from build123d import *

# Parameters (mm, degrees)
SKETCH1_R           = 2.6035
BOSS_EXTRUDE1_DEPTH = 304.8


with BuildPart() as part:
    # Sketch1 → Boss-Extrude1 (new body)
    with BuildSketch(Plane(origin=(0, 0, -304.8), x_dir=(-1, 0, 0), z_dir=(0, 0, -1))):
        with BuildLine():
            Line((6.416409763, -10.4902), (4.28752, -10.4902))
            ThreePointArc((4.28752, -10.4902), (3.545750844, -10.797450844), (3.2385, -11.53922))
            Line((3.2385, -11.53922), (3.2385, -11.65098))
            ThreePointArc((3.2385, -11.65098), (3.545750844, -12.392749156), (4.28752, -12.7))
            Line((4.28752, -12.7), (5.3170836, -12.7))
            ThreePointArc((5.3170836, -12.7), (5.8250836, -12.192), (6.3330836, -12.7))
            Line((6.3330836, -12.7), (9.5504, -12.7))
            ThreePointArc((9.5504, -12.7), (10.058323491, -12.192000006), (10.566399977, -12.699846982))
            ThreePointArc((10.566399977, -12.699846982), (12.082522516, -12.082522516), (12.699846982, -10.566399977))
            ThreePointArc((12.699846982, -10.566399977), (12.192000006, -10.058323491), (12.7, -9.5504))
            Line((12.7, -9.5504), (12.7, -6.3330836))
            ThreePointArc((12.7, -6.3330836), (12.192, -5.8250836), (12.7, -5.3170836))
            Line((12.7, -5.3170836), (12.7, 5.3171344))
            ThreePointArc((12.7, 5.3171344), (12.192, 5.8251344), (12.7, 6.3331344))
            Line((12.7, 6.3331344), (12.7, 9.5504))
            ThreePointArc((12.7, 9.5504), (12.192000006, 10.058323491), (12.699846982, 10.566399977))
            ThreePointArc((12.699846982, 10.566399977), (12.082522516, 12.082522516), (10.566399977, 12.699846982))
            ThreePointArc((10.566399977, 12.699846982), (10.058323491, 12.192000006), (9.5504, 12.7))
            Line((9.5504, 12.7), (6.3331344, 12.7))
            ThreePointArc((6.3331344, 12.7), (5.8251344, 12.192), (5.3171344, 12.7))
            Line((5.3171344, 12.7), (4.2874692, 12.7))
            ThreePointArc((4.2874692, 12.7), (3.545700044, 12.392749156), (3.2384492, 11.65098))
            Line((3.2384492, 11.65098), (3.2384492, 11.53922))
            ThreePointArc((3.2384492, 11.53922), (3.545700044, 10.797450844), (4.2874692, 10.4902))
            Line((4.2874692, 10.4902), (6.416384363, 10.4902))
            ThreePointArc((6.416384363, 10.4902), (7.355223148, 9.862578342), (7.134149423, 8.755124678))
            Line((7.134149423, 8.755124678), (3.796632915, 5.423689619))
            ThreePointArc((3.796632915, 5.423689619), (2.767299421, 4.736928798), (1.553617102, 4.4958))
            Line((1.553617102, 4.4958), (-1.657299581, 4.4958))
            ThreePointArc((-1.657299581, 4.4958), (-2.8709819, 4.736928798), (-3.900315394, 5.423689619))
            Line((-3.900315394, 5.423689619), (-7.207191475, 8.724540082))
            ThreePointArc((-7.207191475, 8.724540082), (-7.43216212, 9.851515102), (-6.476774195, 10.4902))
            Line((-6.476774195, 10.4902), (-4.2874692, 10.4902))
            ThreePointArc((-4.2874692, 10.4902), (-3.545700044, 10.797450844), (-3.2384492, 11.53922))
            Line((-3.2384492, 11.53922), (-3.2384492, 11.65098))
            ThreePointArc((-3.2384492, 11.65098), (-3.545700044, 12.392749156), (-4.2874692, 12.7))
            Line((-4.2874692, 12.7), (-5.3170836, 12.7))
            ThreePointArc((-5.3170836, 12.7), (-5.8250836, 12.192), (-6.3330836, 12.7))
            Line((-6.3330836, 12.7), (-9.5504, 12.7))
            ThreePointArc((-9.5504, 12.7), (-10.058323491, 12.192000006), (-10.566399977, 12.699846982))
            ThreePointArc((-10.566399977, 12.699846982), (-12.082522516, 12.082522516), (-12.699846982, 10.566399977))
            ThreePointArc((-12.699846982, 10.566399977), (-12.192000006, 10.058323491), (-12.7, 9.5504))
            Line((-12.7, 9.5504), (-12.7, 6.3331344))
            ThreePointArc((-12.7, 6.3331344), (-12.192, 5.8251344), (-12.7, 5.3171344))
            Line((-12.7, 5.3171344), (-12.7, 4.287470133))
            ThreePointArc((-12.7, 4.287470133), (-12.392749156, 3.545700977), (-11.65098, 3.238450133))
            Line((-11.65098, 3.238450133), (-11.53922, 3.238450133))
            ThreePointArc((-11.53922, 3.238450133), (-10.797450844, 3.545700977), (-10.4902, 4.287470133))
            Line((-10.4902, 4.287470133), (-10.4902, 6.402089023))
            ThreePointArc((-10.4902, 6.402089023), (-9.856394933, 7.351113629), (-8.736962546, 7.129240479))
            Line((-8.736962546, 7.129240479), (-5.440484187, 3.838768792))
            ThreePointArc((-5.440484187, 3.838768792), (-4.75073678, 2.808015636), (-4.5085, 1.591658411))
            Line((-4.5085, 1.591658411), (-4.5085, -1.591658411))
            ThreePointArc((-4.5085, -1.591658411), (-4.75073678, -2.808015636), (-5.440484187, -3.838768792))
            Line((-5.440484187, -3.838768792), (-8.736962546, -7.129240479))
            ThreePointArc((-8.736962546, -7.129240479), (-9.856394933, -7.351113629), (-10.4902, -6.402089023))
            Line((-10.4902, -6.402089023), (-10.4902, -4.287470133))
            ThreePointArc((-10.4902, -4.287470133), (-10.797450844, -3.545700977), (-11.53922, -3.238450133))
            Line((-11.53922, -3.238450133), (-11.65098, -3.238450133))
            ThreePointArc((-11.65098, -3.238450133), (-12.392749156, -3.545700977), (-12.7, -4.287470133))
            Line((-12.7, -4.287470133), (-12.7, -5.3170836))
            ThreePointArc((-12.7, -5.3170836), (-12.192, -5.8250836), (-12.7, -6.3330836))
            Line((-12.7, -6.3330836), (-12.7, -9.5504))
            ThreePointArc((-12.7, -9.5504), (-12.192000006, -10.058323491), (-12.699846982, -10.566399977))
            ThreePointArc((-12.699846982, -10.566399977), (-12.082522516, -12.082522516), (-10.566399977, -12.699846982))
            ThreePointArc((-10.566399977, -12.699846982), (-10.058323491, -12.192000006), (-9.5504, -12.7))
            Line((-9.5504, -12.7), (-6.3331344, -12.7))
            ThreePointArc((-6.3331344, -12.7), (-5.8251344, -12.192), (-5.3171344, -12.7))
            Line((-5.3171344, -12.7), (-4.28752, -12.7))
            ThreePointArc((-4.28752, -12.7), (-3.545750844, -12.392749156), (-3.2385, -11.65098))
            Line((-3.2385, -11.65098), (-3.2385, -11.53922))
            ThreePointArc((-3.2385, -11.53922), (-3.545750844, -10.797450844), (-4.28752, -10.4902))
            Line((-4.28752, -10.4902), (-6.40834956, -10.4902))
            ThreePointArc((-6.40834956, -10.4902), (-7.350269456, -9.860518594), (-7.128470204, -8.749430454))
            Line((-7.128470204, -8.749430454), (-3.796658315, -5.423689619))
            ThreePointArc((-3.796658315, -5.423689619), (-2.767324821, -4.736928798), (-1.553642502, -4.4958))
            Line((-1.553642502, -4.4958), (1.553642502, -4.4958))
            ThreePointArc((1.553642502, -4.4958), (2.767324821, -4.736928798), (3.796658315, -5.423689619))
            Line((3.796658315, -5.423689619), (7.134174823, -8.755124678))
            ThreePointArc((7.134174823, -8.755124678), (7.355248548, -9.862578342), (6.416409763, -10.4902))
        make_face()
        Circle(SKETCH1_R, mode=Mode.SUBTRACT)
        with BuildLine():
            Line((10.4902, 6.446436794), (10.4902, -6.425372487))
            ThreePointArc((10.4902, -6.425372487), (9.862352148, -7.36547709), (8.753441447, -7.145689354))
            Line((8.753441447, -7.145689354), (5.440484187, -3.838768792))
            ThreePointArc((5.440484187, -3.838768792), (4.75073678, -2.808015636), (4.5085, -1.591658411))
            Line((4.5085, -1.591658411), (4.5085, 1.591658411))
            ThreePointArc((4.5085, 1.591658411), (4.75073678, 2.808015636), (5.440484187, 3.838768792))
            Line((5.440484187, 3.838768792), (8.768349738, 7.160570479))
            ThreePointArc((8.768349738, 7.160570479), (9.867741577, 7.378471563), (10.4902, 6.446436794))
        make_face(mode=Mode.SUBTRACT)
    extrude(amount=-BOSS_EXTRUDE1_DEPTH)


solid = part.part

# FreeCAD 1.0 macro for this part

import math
import FreeCAD as App
import Part
import Sketcher
Q = App.Units.Quantity

doc = App.newDocument("Part")
params = doc.addObject("Spreadsheet::Sheet", "Params")
for row, (alias, value) in enumerate([
    ("sketch1_radius", "0.02 in"),
    ("sketch1_radius2", "0.04 in"),
    ("sketch1_diameter", "0.205 in"),
    ("sketch1_radius3", "0.083 in"),
    ("sketch1_radius4", "0.125 in"),
    ("pad1_length", "12 in"),
], start=1):
    params.set(f"A{row}", alias)
    params.set(f"B{row}", "=" + value)
    params.setAlias(f"B{row}", alias)

body = doc.addObject("PartDesign::Body", "Body")

sketch1 = body.newObject("Sketcher::SketchObject", "Sketch")
sketch1.AttachmentSupport = (doc.getObject("XY_Plane"), [""])
sketch1.MapMode = "FlatFace"
sketch1.AttachmentOffset = App.Placement(App.Vector(0, 0, -12 * 25.4), App.Rotation())
sketch1.addGeometry(Part.LineSegment(App.Vector(-6.42, -10.49, 0), App.Vector(-4.29, -10.49, 0)), False)
sketch1.addGeometry(Part.ArcOfCircle(Part.Circle(App.Vector(-4.29, -11.54, 0), App.Vector(0, 0, 1), 1.05), math.radians(0), math.radians(90)), False)
sketch1.addGeometry(Part.LineSegment(App.Vector(-3.24, -11.54, 0), App.Vector(-3.24, -11.65, 0)), False)
sketch1.addGeometry(Part.ArcOfCircle(Part.Circle(App.Vector(-4.29, -11.65, 0), App.Vector(0, 0, 1), 1.05), math.radians(-90), math.radians(0)), False)
sketch1.addGeometry(Part.LineSegment(App.Vector(-4.29, -12.7, 0), App.Vector(-5.32, -12.7, 0)), False)
sketch1.addGeometry(Part.ArcOfCircle(Part.Circle(App.Vector(-5.83, -12.7, 0), App.Vector(0, 0, 1), 0.51), math.radians(0), math.radians(180)), False)
sketch1.addGeometry(Part.LineSegment(App.Vector(-6.33, -12.7, 0), App.Vector(-9.55, -12.7, 0)), False)
sketch1.addGeometry(Part.ArcOfCircle(Part.Circle(App.Vector(-10.06, -12.7, 0), App.Vector(0, 0, 1), 0.51), math.radians(0), math.radians(180)), False)
sketch1.addGeometry(Part.ArcOfCircle(Part.Circle(App.Vector(-10.59, -10.59, 0), App.Vector(0, 0, 1), 2.11), math.radians(179), math.radians(271)), False)
sketch1.addGeometry(Part.ArcOfCircle(Part.Circle(App.Vector(-12.7, -10.06, 0), App.Vector(0, 0, 1), 0.51), math.radians(-90), math.radians(90)), False)
sketch1.addGeometry(Part.LineSegment(App.Vector(-12.7, -9.55, 0), App.Vector(-12.7, -6.33, 0)), False)
sketch1.addGeometry(Part.ArcOfCircle(Part.Circle(App.Vector(-12.7, -5.83, 0), App.Vector(0, 0, 1), 0.51), math.radians(-90), math.radians(90)), False)
sketch1.addGeometry(Part.LineSegment(App.Vector(-12.7, -5.32, 0), App.Vector(-12.7, 5.32, 0)), False)
sketch1.addGeometry(Part.ArcOfCircle(Part.Circle(App.Vector(-12.7, 5.83, 0), App.Vector(0, 0, 1), 0.51), math.radians(-90), math.radians(90)), False)
sketch1.addGeometry(Part.LineSegment(App.Vector(-12.7, 6.33, 0), App.Vector(-12.7, 9.55, 0)), False)
sketch1.addGeometry(Part.ArcOfCircle(Part.Circle(App.Vector(-12.7, 10.06, 0), App.Vector(0, 0, 1), 0.51), math.radians(-90), math.radians(90)), False)
sketch1.addGeometry(Part.ArcOfCircle(Part.Circle(App.Vector(-10.59, 10.59, 0), App.Vector(0, 0, 1), 2.11), math.radians(89), math.radians(181)), False)
sketch1.addGeometry(Part.ArcOfCircle(Part.Circle(App.Vector(-10.06, 12.7, 0), App.Vector(0, 0, 1), 0.51), math.radians(-180), math.radians(0)), False)
sketch1.addGeometry(Part.LineSegment(App.Vector(-9.55, 12.7, 0), App.Vector(-6.33, 12.7, 0)), False)
sketch1.addGeometry(Part.ArcOfCircle(Part.Circle(App.Vector(-5.83, 12.7, 0), App.Vector(0, 0, 1), 0.51), math.radians(180), math.radians(360)), False)
sketch1.addGeometry(Part.LineSegment(App.Vector(-5.32, 12.7, 0), App.Vector(-4.29, 12.7, 0)), False)
sketch1.addGeometry(Part.ArcOfCircle(Part.Circle(App.Vector(-4.29, 11.65, 0), App.Vector(0, 0, 1), 1.05), math.radians(0), math.radians(90)), False)
sketch1.addGeometry(Part.LineSegment(App.Vector(-3.24, 11.65, 0), App.Vector(-3.24, 11.54, 0)), False)
sketch1.addGeometry(Part.ArcOfCircle(Part.Circle(App.Vector(-4.29, 11.54, 0), App.Vector(0, 0, 1), 1.05), math.radians(-90), math.radians(0)), False)
sketch1.addGeometry(Part.LineSegment(App.Vector(-4.29, 10.49, 0), App.Vector(-6.42, 10.49, 0)), False)
sketch1.addGeometry(Part.ArcOfCircle(Part.Circle(App.Vector(-6.42, 9.47, 0), App.Vector(0, 0, 1), 1.02), math.radians(90), math.radians(225)), False)
sketch1.addGeometry(Part.LineSegment(App.Vector(-7.13, 8.76, 0), App.Vector(-3.8, 5.42, 0)), False)
sketch1.addGeometry(Part.ArcOfCircle(Part.Circle(App.Vector(-1.55, 7.67, 0), App.Vector(0, 0, 1), 3.17), math.radians(-135), math.radians(-90)), False)
sketch1.addGeometry(Part.LineSegment(App.Vector(-1.55, 4.5, 0), App.Vector(1.66, 4.5, 0)), False)
sketch1.addGeometry(Part.ArcOfCircle(Part.Circle(App.Vector(1.66, 7.67, 0), App.Vector(0, 0, 1), 3.17), math.radians(-90), math.radians(-45)), False)
sketch1.addGeometry(Part.LineSegment(App.Vector(3.9, 5.42, 0), App.Vector(7.21, 8.72, 0)), False)
sketch1.addGeometry(Part.ArcOfCircle(Part.Circle(App.Vector(6.48, 9.46, 0), App.Vector(0, 0, 1), 1.03), math.radians(-45), math.radians(90)), False)
sketch1.addGeometry(Part.LineSegment(App.Vector(6.48, 10.49, 0), App.Vector(4.29, 10.49, 0)), False)
sketch1.addGeometry(Part.ArcOfCircle(Part.Circle(App.Vector(4.29, 11.54, 0), App.Vector(0, 0, 1), 1.05), math.radians(180), math.radians(270)), False)
sketch1.addGeometry(Part.LineSegment(App.Vector(3.24, 11.54, 0), App.Vector(3.24, 11.65, 0)), False)
sketch1.addGeometry(Part.ArcOfCircle(Part.Circle(App.Vector(4.29, 11.65, 0), App.Vector(0, 0, 1), 1.05), math.radians(90), math.radians(180)), False)
sketch1.addGeometry(Part.LineSegment(App.Vector(4.29, 12.7, 0), App.Vector(5.32, 12.7, 0)), False)
sketch1.addGeometry(Part.ArcOfCircle(Part.Circle(App.Vector(5.83, 12.7, 0), App.Vector(0, 0, 1), 0.51), math.radians(180), math.radians(360)), False)
sketch1.addGeometry(Part.LineSegment(App.Vector(6.33, 12.7, 0), App.Vector(9.55, 12.7, 0)), False)
sketch1.addGeometry(Part.ArcOfCircle(Part.Circle(App.Vector(10.06, 12.7, 0), App.Vector(0, 0, 1), 0.51), math.radians(180), math.radians(360)), False)
sketch1.addGeometry(Part.ArcOfCircle(Part.Circle(App.Vector(10.59, 10.59, 0), App.Vector(0, 0, 1), 2.11), math.radians(-1), math.radians(91)), False)
sketch1.addGeometry(Part.ArcOfCircle(Part.Circle(App.Vector(12.7, 10.06, 0), App.Vector(0, 0, 1), 0.51), math.radians(90), math.radians(270)), False)
sketch1.addGeometry(Part.LineSegment(App.Vector(12.7, 9.55, 0), App.Vector(12.7, 6.33, 0)), False)
sketch1.addGeometry(Part.ArcOfCircle(Part.Circle(App.Vector(12.7, 5.83, 0), App.Vector(0, 0, 1), 0.51), math.radians(90), math.radians(270)), False)
sketch1.addGeometry(Part.LineSegment(App.Vector(12.7, 5.32, 0), App.Vector(12.7, 4.29, 0)), False)
sketch1.addGeometry(Part.ArcOfCircle(Part.Circle(App.Vector(11.65, 4.29, 0), App.Vector(0, 0, 1), 1.05), math.radians(-90), math.radians(0)), False)
sketch1.addGeometry(Part.LineSegment(App.Vector(11.65, 3.24, 0), App.Vector(11.54, 3.24, 0)), False)
sketch1.addGeometry(Part.ArcOfCircle(Part.Circle(App.Vector(11.54, 4.29, 0), App.Vector(0, 0, 1), 1.05), math.radians(180), math.radians(270)), False)
sketch1.addGeometry(Part.LineSegment(App.Vector(10.49, 4.29, 0), App.Vector(10.49, 6.4, 0)), False)
sketch1.addGeometry(Part.ArcOfCircle(Part.Circle(App.Vector(9.46, 6.4, 0), App.Vector(0, 0, 1), 1.03), math.radians(0), math.radians(135)), False)
sketch1.addGeometry(Part.LineSegment(App.Vector(8.74, 7.13, 0), App.Vector(5.44, 3.84, 0)), False)
sketch1.addGeometry(Part.ArcOfCircle(Part.Circle(App.Vector(7.68, 1.59, 0), App.Vector(0, 0, 1), 3.17), math.radians(135), math.radians(180)), False)
sketch1.addGeometry(Part.LineSegment(App.Vector(4.51, 1.59, 0), App.Vector(4.51, -1.59, 0)), False)
sketch1.addGeometry(Part.ArcOfCircle(Part.Circle(App.Vector(7.68, -1.59, 0), App.Vector(0, 0, 1), 3.17), math.radians(180), math.radians(225)), False)
sketch1.addGeometry(Part.LineSegment(App.Vector(5.44, -3.84, 0), App.Vector(8.74, -7.13, 0)), False)
sketch1.addGeometry(Part.ArcOfCircle(Part.Circle(App.Vector(9.46, -6.4, 0), App.Vector(0, 0, 1), 1.03), math.radians(-135), math.radians(0)), False)
sketch1.addGeometry(Part.LineSegment(App.Vector(10.49, -6.4, 0), App.Vector(10.49, -4.29, 0)), False)
sketch1.addGeometry(Part.ArcOfCircle(Part.Circle(App.Vector(11.54, -4.29, 0), App.Vector(0, 0, 1), 1.05), math.radians(90), math.radians(180)), False)
sketch1.addGeometry(Part.LineSegment(App.Vector(11.54, -3.24, 0), App.Vector(11.65, -3.24, 0)), False)
sketch1.addGeometry(Part.ArcOfCircle(Part.Circle(App.Vector(11.65, -4.29, 0), App.Vector(0, 0, 1), 1.05), math.radians(0), math.radians(90)), False)
sketch1.addGeometry(Part.LineSegment(App.Vector(12.7, -4.29, 0), App.Vector(12.7, -5.32, 0)), False)
sketch1.addGeometry(Part.ArcOfCircle(Part.Circle(App.Vector(12.7, -5.83, 0), App.Vector(0, 0, 1), 0.51), math.radians(90), math.radians(270)), False)
sketch1.addGeometry(Part.LineSegment(App.Vector(12.7, -6.33, 0), App.Vector(12.7, -9.55, 0)), False)
sketch1.addGeometry(Part.ArcOfCircle(Part.Circle(App.Vector(12.7, -10.06, 0), App.Vector(0, 0, 1), 0.51), math.radians(90), math.radians(270)), False)
sketch1.addGeometry(Part.ArcOfCircle(Part.Circle(App.Vector(10.59, -10.59, 0), App.Vector(0, 0, 1), 2.11), math.radians(-91), math.radians(1)), False)
sketch1.addGeometry(Part.ArcOfCircle(Part.Circle(App.Vector(10.06, -12.7, 0), App.Vector(0, 0, 1), 0.51), math.radians(0), math.radians(180)), False)
sketch1.addGeometry(Part.LineSegment(App.Vector(9.55, -12.7, 0), App.Vector(6.33, -12.7, 0)), False)
sketch1.addGeometry(Part.ArcOfCircle(Part.Circle(App.Vector(5.83, -12.7, 0), App.Vector(0, 0, 1), 0.51), math.radians(0), math.radians(180)), False)
sketch1.addGeometry(Part.LineSegment(App.Vector(5.32, -12.7, 0), App.Vector(4.29, -12.7, 0)), False)
sketch1.addGeometry(Part.ArcOfCircle(Part.Circle(App.Vector(4.29, -11.65, 0), App.Vector(0, 0, 1), 1.05), math.radians(180), math.radians(270)), False)
sketch1.addGeometry(Part.LineSegment(App.Vector(3.24, -11.65, 0), App.Vector(3.24, -11.54, 0)), False)
sketch1.addGeometry(Part.ArcOfCircle(Part.Circle(App.Vector(4.29, -11.54, 0), App.Vector(0, 0, 1), 1.05), math.radians(90), math.radians(180)), False)
sketch1.addGeometry(Part.LineSegment(App.Vector(4.29, -10.49, 0), App.Vector(6.41, -10.49, 0)), False)
sketch1.addGeometry(Part.ArcOfCircle(Part.Circle(App.Vector(6.41, -9.47, 0), App.Vector(0, 0, 1), 1.02), math.radians(-90), math.radians(45)), False)
sketch1.addGeometry(Part.LineSegment(App.Vector(7.13, -8.75, 0), App.Vector(3.8, -5.42, 0)), False)
sketch1.addGeometry(Part.ArcOfCircle(Part.Circle(App.Vector(1.55, -7.67, 0), App.Vector(0, 0, 1), 3.17), math.radians(45), math.radians(90)), False)
sketch1.addGeometry(Part.LineSegment(App.Vector(1.55, -4.5, 0), App.Vector(-1.55, -4.5, 0)), False)
sketch1.addGeometry(Part.ArcOfCircle(Part.Circle(App.Vector(-1.55, -7.67, 0), App.Vector(0, 0, 1), 3.17), math.radians(90), math.radians(135)), False)
sketch1.addGeometry(Part.LineSegment(App.Vector(-3.8, -5.42, 0), App.Vector(-7.13, -8.76, 0)), False)
sketch1.addGeometry(Part.ArcOfCircle(Part.Circle(App.Vector(-6.42, -9.47, 0), App.Vector(0, 0, 1), 1.02), math.radians(135), math.radians(270)), False)
sketch1.addGeometry(Part.Circle(App.Vector(0, 0, 0), App.Vector(0, 0, 1), 2.6), False)
sketch1.addGeometry(Part.ArcOfCircle(Part.Circle(App.Vector(-9.48, 6.45, 0), App.Vector(0, 0, 1), 1.01), math.radians(45), math.radians(180)), False)
sketch1.addGeometry(Part.LineSegment(App.Vector(-10.49, 6.45, 0), App.Vector(-10.49, -6.43, 0)), False)
sketch1.addGeometry(Part.ArcOfCircle(Part.Circle(App.Vector(-9.47, -6.43, 0), App.Vector(0, 0, 1), 1.02), math.radians(180), math.radians(315)), False)
sketch1.addGeometry(Part.LineSegment(App.Vector(-8.75, -7.15, 0), App.Vector(-5.44, -3.84, 0)), False)
sketch1.addGeometry(Part.ArcOfCircle(Part.Circle(App.Vector(-7.68, -1.59, 0), App.Vector(0, 0, 1), 3.17), math.radians(-45), math.radians(0)), False)
sketch1.addGeometry(Part.LineSegment(App.Vector(-4.51, -1.59, 0), App.Vector(-4.51, 1.59, 0)), False)
sketch1.addGeometry(Part.ArcOfCircle(Part.Circle(App.Vector(-7.68, 1.59, 0), App.Vector(0, 0, 1), 3.17), math.radians(0), math.radians(45)), False)
sketch1.addGeometry(Part.LineSegment(App.Vector(-5.44, 3.84, 0), App.Vector(-8.77, 7.16, 0)), False)
sketch1.addConstraint(Sketcher.Constraint("Tangent", 0, 2, 1, 2))
sketch1.addConstraint(Sketcher.Constraint("Tangent", 1, 1, 2, 1))
sketch1.addConstraint(Sketcher.Constraint("Tangent", 2, 2, 3, 2))
sketch1.addConstraint(Sketcher.Constraint("Tangent", 3, 1, 4, 1))
sketch1.addConstraint(Sketcher.Constraint("Coincident", 4, 2, 5, 1))
sketch1.addConstraint(Sketcher.Constraint("Coincident", 5, 2, 6, 1))
sketch1.addConstraint(Sketcher.Constraint("Coincident", 6, 2, 7, 1))
sketch1.addConstraint(Sketcher.Constraint("Coincident", 7, 2, 8, 2))
sketch1.addConstraint(Sketcher.Constraint("Coincident", 8, 1, 9, 1))
sketch1.addConstraint(Sketcher.Constraint("Coincident", 9, 2, 10, 1))
sketch1.addConstraint(Sketcher.Constraint("Coincident", 10, 2, 11, 1))
sketch1.addConstraint(Sketcher.Constraint("Coincident", 11, 2, 12, 1))
sketch1.addConstraint(Sketcher.Constraint("Coincident", 12, 2, 13, 1))
sketch1.addConstraint(Sketcher.Constraint("Coincident", 13, 2, 14, 1))
sketch1.addConstraint(Sketcher.Constraint("Coincident", 14, 2, 15, 1))
sketch1.addConstraint(Sketcher.Constraint("Coincident", 15, 2, 16, 2))
sketch1.addConstraint(Sketcher.Constraint("Coincident", 16, 1, 17, 1))
sketch1.addConstraint(Sketcher.Constraint("Coincident", 17, 2, 18, 1))
sketch1.addConstraint(Sketcher.Constraint("Coincident", 18, 2, 19, 1))
sketch1.addConstraint(Sketcher.Constraint("Coincident", 19, 2, 20, 1))
sketch1.addConstraint(Sketcher.Constraint("Tangent", 20, 2, 21, 2))
sketch1.addConstraint(Sketcher.Constraint("Tangent", 21, 1, 22, 1))
sketch1.addConstraint(Sketcher.Constraint("Tangent", 22, 2, 23, 2))
sketch1.addConstraint(Sketcher.Constraint("Tangent", 23, 1, 24, 1))
sketch1.addConstraint(Sketcher.Constraint("Tangent", 24, 2, 25, 1))
sketch1.addConstraint(Sketcher.Constraint("Tangent", 25, 2, 26, 1))
sketch1.addConstraint(Sketcher.Constraint("Tangent", 26, 2, 27, 1))
sketch1.addConstraint(Sketcher.Constraint("Tangent", 27, 2, 28, 1))
sketch1.addConstraint(Sketcher.Constraint("Tangent", 28, 2, 29, 1))
sketch1.addConstraint(Sketcher.Constraint("Tangent", 29, 2, 30, 1))
sketch1.addConstraint(Sketcher.Constraint("Tangent", 30, 2, 31, 1))
sketch1.addConstraint(Sketcher.Constraint("Tangent", 31, 2, 32, 1))
sketch1.addConstraint(Sketcher.Constraint("Tangent", 32, 2, 33, 2))
sketch1.addConstraint(Sketcher.Constraint("Tangent", 33, 1, 34, 1))
sketch1.addConstraint(Sketcher.Constraint("Tangent", 34, 2, 35, 2))
sketch1.addConstraint(Sketcher.Constraint("Tangent", 35, 1, 36, 1))
sketch1.addConstraint(Sketcher.Constraint("Coincident", 36, 2, 37, 1))
sketch1.addConstraint(Sketcher.Constraint("Coincident", 37, 2, 38, 1))
sketch1.addConstraint(Sketcher.Constraint("Coincident", 38, 2, 39, 1))
sketch1.addConstraint(Sketcher.Constraint("Coincident", 39, 2, 40, 2))
sketch1.addConstraint(Sketcher.Constraint("Coincident", 40, 1, 41, 1))
sketch1.addConstraint(Sketcher.Constraint("Coincident", 41, 2, 42, 1))
sketch1.addConstraint(Sketcher.Constraint("Coincident", 42, 2, 43, 1))
sketch1.addConstraint(Sketcher.Constraint("Coincident", 43, 2, 44, 1))
sketch1.addConstraint(Sketcher.Constraint("Tangent", 44, 2, 45, 2))
sketch1.addConstraint(Sketcher.Constraint("Tangent", 45, 1, 46, 1))
sketch1.addConstraint(Sketcher.Constraint("Tangent", 46, 2, 47, 2))
sketch1.addConstraint(Sketcher.Constraint("Tangent", 47, 1, 48, 1))
sketch1.addConstraint(Sketcher.Constraint("Tangent", 48, 2, 49, 1))
sketch1.addConstraint(Sketcher.Constraint("Tangent", 49, 2, 50, 1))
sketch1.addConstraint(Sketcher.Constraint("Tangent", 50, 2, 51, 1))
sketch1.addConstraint(Sketcher.Constraint("Tangent", 51, 2, 52, 1))
sketch1.addConstraint(Sketcher.Constraint("Tangent", 52, 2, 53, 1))
sketch1.addConstraint(Sketcher.Constraint("Tangent", 53, 2, 54, 1))
sketch1.addConstraint(Sketcher.Constraint("Tangent", 54, 2, 55, 1))
sketch1.addConstraint(Sketcher.Constraint("Tangent", 55, 2, 56, 1))
sketch1.addConstraint(Sketcher.Constraint("Tangent", 56, 2, 57, 2))
sketch1.addConstraint(Sketcher.Constraint("Tangent", 57, 1, 58, 1))
sketch1.addConstraint(Sketcher.Constraint("Tangent", 58, 2, 59, 2))
sketch1.addConstraint(Sketcher.Constraint("Tangent", 59, 1, 60, 1))
sketch1.addConstraint(Sketcher.Constraint("Coincident", 60, 2, 61, 1))
sketch1.addConstraint(Sketcher.Constraint("Coincident", 61, 2, 62, 1))
sketch1.addConstraint(Sketcher.Constraint("Coincident", 62, 2, 63, 1))
sketch1.addConstraint(Sketcher.Constraint("Coincident", 63, 2, 64, 2))
sketch1.addConstraint(Sketcher.Constraint("Coincident", 64, 1, 65, 1))
sketch1.addConstraint(Sketcher.Constraint("Coincident", 65, 2, 66, 1))
sketch1.addConstraint(Sketcher.Constraint("Coincident", 66, 2, 67, 1))
sketch1.addConstraint(Sketcher.Constraint("Coincident", 67, 2, 68, 1))
sketch1.addConstraint(Sketcher.Constraint("Tangent", 68, 2, 69, 2))
sketch1.addConstraint(Sketcher.Constraint("Tangent", 69, 1, 70, 1))
sketch1.addConstraint(Sketcher.Constraint("Tangent", 70, 2, 71, 2))
sketch1.addConstraint(Sketcher.Constraint("Tangent", 71, 1, 72, 1))
sketch1.addConstraint(Sketcher.Constraint("Tangent", 72, 2, 73, 1))
sketch1.addConstraint(Sketcher.Constraint("Tangent", 73, 2, 74, 1))
sketch1.addConstraint(Sketcher.Constraint("Tangent", 74, 2, 75, 1))
sketch1.addConstraint(Sketcher.Constraint("Tangent", 75, 2, 76, 1))
sketch1.addConstraint(Sketcher.Constraint("Tangent", 76, 2, 77, 1))
sketch1.addConstraint(Sketcher.Constraint("Tangent", 77, 2, 78, 1))
sketch1.addConstraint(Sketcher.Constraint("Tangent", 78, 2, 79, 1))
sketch1.addConstraint(Sketcher.Constraint("Tangent", 79, 2, 0, 1))
sketch1.addConstraint(Sketcher.Constraint("Tangent", 81, 2, 82, 1))
sketch1.addConstraint(Sketcher.Constraint("Tangent", 82, 2, 83, 1))
sketch1.addConstraint(Sketcher.Constraint("Tangent", 83, 2, 84, 1))
sketch1.addConstraint(Sketcher.Constraint("Tangent", 84, 2, 85, 1))
sketch1.addConstraint(Sketcher.Constraint("Tangent", 85, 2, 86, 1))
sketch1.addConstraint(Sketcher.Constraint("Tangent", 86, 2, 87, 1))
sketch1.addConstraint(Sketcher.Constraint("Tangent", 87, 2, 88, 1))
sketch1.addConstraint(Sketcher.Constraint("Tangent", 88, 2, 81, 1))
sketch1.addConstraint(Sketcher.Constraint("Horizontal", 0))
sketch1.addConstraint(Sketcher.Constraint("Vertical", 2))
sketch1.addConstraint(Sketcher.Constraint("Horizontal", 4))
sketch1.addConstraint(Sketcher.Constraint("Horizontal", 6))
sketch1.addConstraint(Sketcher.Constraint("Vertical", 10))
sketch1.addConstraint(Sketcher.Constraint("Vertical", 12))
sketch1.addConstraint(Sketcher.Constraint("Vertical", 14))
sketch1.addConstraint(Sketcher.Constraint("Horizontal", 18))
sketch1.addConstraint(Sketcher.Constraint("Horizontal", 20))
sketch1.addConstraint(Sketcher.Constraint("Vertical", 22))
sketch1.addConstraint(Sketcher.Constraint("Horizontal", 24))
sketch1.addConstraint(Sketcher.Constraint("Horizontal", 28))
sketch1.addConstraint(Sketcher.Constraint("Horizontal", 32))
sketch1.addConstraint(Sketcher.Constraint("Vertical", 34))
sketch1.addConstraint(Sketcher.Constraint("Horizontal", 36))
sketch1.addConstraint(Sketcher.Constraint("Horizontal", 38))
sketch1.addConstraint(Sketcher.Constraint("Vertical", 42))
sketch1.addConstraint(Sketcher.Constraint("Vertical", 44))
sketch1.addConstraint(Sketcher.Constraint("Horizontal", 46))
sketch1.addConstraint(Sketcher.Constraint("Vertical", 48))
sketch1.addConstraint(Sketcher.Constraint("Vertical", 52))
sketch1.addConstraint(Sketcher.Constraint("Vertical", 56))
sketch1.addConstraint(Sketcher.Constraint("Horizontal", 58))
sketch1.addConstraint(Sketcher.Constraint("Vertical", 60))
sketch1.addConstraint(Sketcher.Constraint("Vertical", 62))
sketch1.addConstraint(Sketcher.Constraint("Horizontal", 66))
sketch1.addConstraint(Sketcher.Constraint("Horizontal", 68))
sketch1.addConstraint(Sketcher.Constraint("Vertical", 70))
sketch1.addConstraint(Sketcher.Constraint("Horizontal", 72))
sketch1.addConstraint(Sketcher.Constraint("Horizontal", 76))
sketch1.addConstraint(Sketcher.Constraint("Vertical", 82))
sketch1.addConstraint(Sketcher.Constraint("Vertical", 86))
sketch1.addConstraint(Sketcher.Constraint("Coincident", 80, 3, -1, 1))
sketch1.addConstraint(Sketcher.Constraint("Equal", 1, 3))
sketch1.addConstraint(Sketcher.Constraint("Equal", 5, 7))
sketch1.addConstraint(Sketcher.Constraint("Equal", 7, 9))
sketch1.addConstraint(Sketcher.Constraint("Equal", 9, 11))
sketch1.addConstraint(Sketcher.Constraint("Equal", 11, 13))
sketch1.addConstraint(Sketcher.Constraint("Equal", 13, 15))
sketch1.addConstraint(Sketcher.Constraint("Equal", 8, 16))
sketch1.addConstraint(Sketcher.Constraint("Equal", 15, 17))
sketch1.addConstraint(Sketcher.Constraint("Equal", 17, 19))
sketch1.addConstraint(Sketcher.Constraint("Equal", 3, 21))
sketch1.addConstraint(Sketcher.Constraint("Equal", 21, 23))
sketch1.addConstraint(Sketcher.Constraint("Equal", 27, 29))
sketch1.addConstraint(Sketcher.Constraint("Equal", 23, 33))
sketch1.addConstraint(Sketcher.Constraint("Equal", 33, 35))
sketch1.addConstraint(Sketcher.Constraint("Equal", 19, 37))
sketch1.addConstraint(Sketcher.Constraint("Equal", 37, 39))
sketch1.addConstraint(Sketcher.Constraint("Equal", 16, 40))
sketch1.addConstraint(Sketcher.Constraint("Equal", 39, 41))
sketch1.addConstraint(Sketcher.Constraint("Equal", 41, 43))
sketch1.addConstraint(Sketcher.Constraint("Equal", 35, 45))
sketch1.addConstraint(Sketcher.Constraint("Equal", 45, 47))
sketch1.addConstraint(Sketcher.Constraint("Equal", 29, 51))
sketch1.addConstraint(Sketcher.Constraint("Equal", 51, 53))
sketch1.addConstraint(Sketcher.Constraint("Equal", 49, 55))
sketch1.addConstraint(Sketcher.Constraint("Equal", 47, 57))
sketch1.addConstraint(Sketcher.Constraint("Equal", 57, 59))
sketch1.addConstraint(Sketcher.Constraint("Equal", 43, 61))
sketch1.addConstraint(Sketcher.Constraint("Equal", 61, 63))
sketch1.addConstraint(Sketcher.Constraint("Equal", 40, 64))
sketch1.addConstraint(Sketcher.Constraint("Equal", 63, 65))
sketch1.addConstraint(Sketcher.Constraint("Equal", 65, 67))
sketch1.addConstraint(Sketcher.Constraint("Equal", 59, 69))
sketch1.addConstraint(Sketcher.Constraint("Equal", 69, 71))
sketch1.addConstraint(Sketcher.Constraint("Equal", 53, 75))
sketch1.addConstraint(Sketcher.Constraint("Equal", 75, 77))
sketch1.addConstraint(Sketcher.Constraint("Equal", 25, 79))
sketch1.addConstraint(Sketcher.Constraint("Equal", 77, 85))
sketch1.addConstraint(Sketcher.Constraint("Equal", 85, 87))
sketch1.addConstraint(Sketcher.Constraint("Symmetric", 5, 3, 37, 3, -1, 1))
sketch1.addConstraint(Sketcher.Constraint("Symmetric", 7, 3, 39, 3, -1, 1))
sketch1.addConstraint(Sketcher.Constraint("Symmetric", 8, 3, 40, 3, -1, 1))
sketch1.addConstraint(Sketcher.Constraint("Symmetric", 9, 3, 41, 3, -1, 1))
sketch1.addConstraint(Sketcher.Constraint("Symmetric", 15, 3, 63, 3, -1, 1))
sketch1.addConstraint(Sketcher.Constraint("Symmetric", 16, 3, 64, 3, -1, 1))
sketch1.addConstraint(Sketcher.Constraint("Symmetric", 17, 3, 65, 3, -1, 1))
sketch1.addConstraint(Sketcher.Constraint("Symmetric", 19, 3, 67, 3, -1, 1))
sketch1.addConstraint(Sketcher.Constraint("Symmetric", 51, 3, 85, 3, -1, 1))
sketch1.addConstraint(Sketcher.Constraint("Symmetric", 53, 2, 87, 2, -1, 1))
sketch1.addConstraint(Sketcher.Constraint("Symmetric", 23, 3, 33, 3, -2))
sketch1.addConstraint(Sketcher.Constraint("Symmetric", 17, 3, 39, 3, -2))
sketch1.addConstraint(Sketcher.Constraint("Symmetric", 16, 3, 40, 3, -2))
sketch1.addConstraint(Sketcher.Constraint("Symmetric", 15, 3, 41, 3, -2))
sketch1.addConstraint(Sketcher.Constraint("Symmetric", 13, 3, 43, 3, -2))
sketch1.addConstraint(Sketcher.Constraint("Symmetric", 11, 3, 61, 3, -2))
sketch1.addConstraint(Sketcher.Constraint("Symmetric", 3, 3, 69, 3, -2))
sketch1.addConstraint(Sketcher.Constraint("Symmetric", 74, 2, 77, 2, -2))
sketch1.addConstraint(Sketcher.Constraint("Symmetric", 53, 2, 84, 2, -2))
sketch1.addConstraint(Sketcher.Constraint("Symmetric", 49, 3, 55, 3, -1))
sketch1.addConstraint(Sketcher.Constraint("Symmetric", 45, 3, 59, 3, -1))
sketch1.addConstraint(Sketcher.Constraint("Parallel", 30, 50))
sketch1.addConstraint(Sketcher.Constraint("Parallel", 26, 54))
sketch1.addConstraint(Sketcher.Constraint("Parallel", 54, 74))
sketch1.addConstraint(Sketcher.Constraint("Horizontal", 5, 3, 7, 3))
sketch1.addConstraint(Sketcher.Constraint("Horizontal", 17, 3, 19, 3))
sketch1.addConstraint(Sketcher.Constraint("Horizontal", 21, 3, 35, 3))
sketch1.addConstraint(Sketcher.Constraint("Horizontal", 1, 3, 71, 3))
sketch1.addConstraint(Sketcher.Constraint("Horizontal", 67, 3, 3, 1))
sketch1.addConstraint(Sketcher.Constraint("Horizontal", 4, 2, 5, 2))
sketch1.addConstraint(Sketcher.Constraint("Horizontal", 39, 3, 17, 2))
sketch1.addConstraint(Sketcher.Constraint("Horizontal", 18, 2, 19, 2))
sketch1.addConstraint(Sketcher.Constraint("Horizontal", 36, 2, 37, 2))
sketch1.addConstraint(Sketcher.Constraint("Horizontal", 6, 2, 65, 2))
sketch1.addConstraint(Sketcher.Constraint("Vertical", 9, 3, 11, 3))
sketch1.addConstraint(Sketcher.Constraint("Vertical", 11, 3, 13, 3))
sketch1.addConstraint(Sketcher.Constraint("Vertical", 15, 3, 9, 2))
sketch1.addConstraint(Sketcher.Constraint("Vertical", 10, 2, 11, 2))
sketch1.addConstraint(Sketcher.Constraint("Vertical", 12, 2, 13, 2))
sketch1.addConstraint(Sketcher.Constraint("Vertical", 63, 3, 41, 2))
sketch1.addConstraint(Sketcher.Constraint("Vertical", 42, 2, 43, 2))
sketch1.addConstraint(Sketcher.Constraint("Vertical", 60, 2, 61, 2))
sketch1.addConstraint(Sketcher.Constraint("Equal", 36, 68))
sketch1.addConstraint(Sketcher.Constraint("Equal", 58, 2))
sketch1.addConstraint(Sketcher.Constraint("Equal", 38, 10))
sketch1.addConstraint(Sketcher.Constraint("Equal", 66, 14))
sketch1.addConstraint(Sketcher.Constraint("Equal", 2, 22))
sketch1.addConstraint(Sketcher.Constraint("Equal", 20, 44))
sketch1.addConstraint(Sketcher.Constraint("Equal", 26, 78))
sketch1.addConstraint(Sketcher.Constraint("Radius", 5, Q("0.02 in")))
sketch1.addConstraint(Sketcher.Constraint("Radius", 25, Q("0.04 in")))
sketch1.addConstraint(Sketcher.Constraint("Diameter", 80, Q("0.205 in")))
sketch1.addConstraint(Sketcher.Constraint("Radius", 8, Q("0.083 in")))
sketch1.addConstraint(Sketcher.Constraint("Radius", 27, Q("0.125 in")))
sketch1.addConstraint(Sketcher.Constraint("DistanceY", 5, 3, -1, 1, Q("0.5 in")))
sketch1.addConstraint(Sketcher.Constraint("DistanceX", 9, 3, -1, 1, Q("0.5 in")))
sketch1.addConstraint(Sketcher.Constraint("Radius", 1, Q("0.0413 in")))
sketch1.addConstraint(Sketcher.Constraint("DistanceX", 46, 2, 46, 1, Q("0.0044 in")))
sketch1.addConstraint(Sketcher.Constraint("DistanceX", 7, 3, -1, 1, Q("0.396 in")))
sketch1.addConstraint(Sketcher.Constraint("DistanceX", 8, 3, -1, 1, Q("0.417 in")))
sketch1.addConstraint(Sketcher.Constraint("DistanceY", 8, 3, -1, 1, Q("0.417 in")))
sketch1.addConstraint(Sketcher.Constraint("DistanceY", 9, 3, -1, 1, Q("0.396 in")))
sketch1.addConstraint(Sketcher.Constraint("DistanceY", -1, 1, 27, 3, Q("0.302 in")))
sketch1.addConstraint(Sketcher.Constraint("DistanceX", 81, 2, -1, 1, Q("0.413 in")))
sketch1.addConstraint(Sketcher.Constraint("Radius", 31, 1.033909))
sketch1.addConstraint(Sketcher.Constraint("Radius", 49, 1.027411))
sketch1.addConstraint(Sketcher.Constraint("DistanceX", 1, 3, -1, 1, Q("0.1688 in")))
sketch1.addConstraint(Sketcher.Constraint("DistanceX", -1, 1, 51, 3, Q("0.3025 in")))
sketch1.addConstraint(Sketcher.Constraint("Radius", 73, 1.019334))
sketch1.addConstraint(Sketcher.Constraint("Radius", 81, 1.009018))
sketch1.addConstraint(Sketcher.Constraint("Radius", 83, 1.017754))
sketch1.addConstraint(Sketcher.Constraint("DistanceX", 0, 1, 0, 2, 2.12889))
sketch1.addConstraint(Sketcher.Constraint("DistanceY", 12, 1, 12, 2, 10.634218))
sketch1.addConstraint(Sketcher.Constraint("DistanceY", 48, 1, 48, 2, 2.114619))
sketch1.addConstraint(Sketcher.Constraint("DistanceY", 82, 2, 82, 1, 12.871809))
sketch1.addConstraint(Sketcher.Constraint("DistanceX", -1, 1, 29, 3, 1.6573))
sketch1.addConstraint(Sketcher.Constraint("Distance", 30, 4.67237))
sketch1.addConstraint(Sketcher.Constraint("DistanceX", 24, 2, 24, 1, 2.128915))
sketch1.setExpression("Constraints[208]", "Params.sketch1_radius")
sketch1.setExpression("Constraints[209]", "Params.sketch1_radius2")
sketch1.setExpression("Constraints[210]", "Params.sketch1_diameter")
sketch1.setExpression("Constraints[211]", "Params.sketch1_radius3")
sketch1.setExpression("Constraints[212]", "Params.sketch1_radius4")
pad1 = body.newObject("PartDesign::Pad", "Pad")
pad1.Profile = sketch1
pad1.setExpression("Length", "Params.pad1_length")

doc.recompute()
